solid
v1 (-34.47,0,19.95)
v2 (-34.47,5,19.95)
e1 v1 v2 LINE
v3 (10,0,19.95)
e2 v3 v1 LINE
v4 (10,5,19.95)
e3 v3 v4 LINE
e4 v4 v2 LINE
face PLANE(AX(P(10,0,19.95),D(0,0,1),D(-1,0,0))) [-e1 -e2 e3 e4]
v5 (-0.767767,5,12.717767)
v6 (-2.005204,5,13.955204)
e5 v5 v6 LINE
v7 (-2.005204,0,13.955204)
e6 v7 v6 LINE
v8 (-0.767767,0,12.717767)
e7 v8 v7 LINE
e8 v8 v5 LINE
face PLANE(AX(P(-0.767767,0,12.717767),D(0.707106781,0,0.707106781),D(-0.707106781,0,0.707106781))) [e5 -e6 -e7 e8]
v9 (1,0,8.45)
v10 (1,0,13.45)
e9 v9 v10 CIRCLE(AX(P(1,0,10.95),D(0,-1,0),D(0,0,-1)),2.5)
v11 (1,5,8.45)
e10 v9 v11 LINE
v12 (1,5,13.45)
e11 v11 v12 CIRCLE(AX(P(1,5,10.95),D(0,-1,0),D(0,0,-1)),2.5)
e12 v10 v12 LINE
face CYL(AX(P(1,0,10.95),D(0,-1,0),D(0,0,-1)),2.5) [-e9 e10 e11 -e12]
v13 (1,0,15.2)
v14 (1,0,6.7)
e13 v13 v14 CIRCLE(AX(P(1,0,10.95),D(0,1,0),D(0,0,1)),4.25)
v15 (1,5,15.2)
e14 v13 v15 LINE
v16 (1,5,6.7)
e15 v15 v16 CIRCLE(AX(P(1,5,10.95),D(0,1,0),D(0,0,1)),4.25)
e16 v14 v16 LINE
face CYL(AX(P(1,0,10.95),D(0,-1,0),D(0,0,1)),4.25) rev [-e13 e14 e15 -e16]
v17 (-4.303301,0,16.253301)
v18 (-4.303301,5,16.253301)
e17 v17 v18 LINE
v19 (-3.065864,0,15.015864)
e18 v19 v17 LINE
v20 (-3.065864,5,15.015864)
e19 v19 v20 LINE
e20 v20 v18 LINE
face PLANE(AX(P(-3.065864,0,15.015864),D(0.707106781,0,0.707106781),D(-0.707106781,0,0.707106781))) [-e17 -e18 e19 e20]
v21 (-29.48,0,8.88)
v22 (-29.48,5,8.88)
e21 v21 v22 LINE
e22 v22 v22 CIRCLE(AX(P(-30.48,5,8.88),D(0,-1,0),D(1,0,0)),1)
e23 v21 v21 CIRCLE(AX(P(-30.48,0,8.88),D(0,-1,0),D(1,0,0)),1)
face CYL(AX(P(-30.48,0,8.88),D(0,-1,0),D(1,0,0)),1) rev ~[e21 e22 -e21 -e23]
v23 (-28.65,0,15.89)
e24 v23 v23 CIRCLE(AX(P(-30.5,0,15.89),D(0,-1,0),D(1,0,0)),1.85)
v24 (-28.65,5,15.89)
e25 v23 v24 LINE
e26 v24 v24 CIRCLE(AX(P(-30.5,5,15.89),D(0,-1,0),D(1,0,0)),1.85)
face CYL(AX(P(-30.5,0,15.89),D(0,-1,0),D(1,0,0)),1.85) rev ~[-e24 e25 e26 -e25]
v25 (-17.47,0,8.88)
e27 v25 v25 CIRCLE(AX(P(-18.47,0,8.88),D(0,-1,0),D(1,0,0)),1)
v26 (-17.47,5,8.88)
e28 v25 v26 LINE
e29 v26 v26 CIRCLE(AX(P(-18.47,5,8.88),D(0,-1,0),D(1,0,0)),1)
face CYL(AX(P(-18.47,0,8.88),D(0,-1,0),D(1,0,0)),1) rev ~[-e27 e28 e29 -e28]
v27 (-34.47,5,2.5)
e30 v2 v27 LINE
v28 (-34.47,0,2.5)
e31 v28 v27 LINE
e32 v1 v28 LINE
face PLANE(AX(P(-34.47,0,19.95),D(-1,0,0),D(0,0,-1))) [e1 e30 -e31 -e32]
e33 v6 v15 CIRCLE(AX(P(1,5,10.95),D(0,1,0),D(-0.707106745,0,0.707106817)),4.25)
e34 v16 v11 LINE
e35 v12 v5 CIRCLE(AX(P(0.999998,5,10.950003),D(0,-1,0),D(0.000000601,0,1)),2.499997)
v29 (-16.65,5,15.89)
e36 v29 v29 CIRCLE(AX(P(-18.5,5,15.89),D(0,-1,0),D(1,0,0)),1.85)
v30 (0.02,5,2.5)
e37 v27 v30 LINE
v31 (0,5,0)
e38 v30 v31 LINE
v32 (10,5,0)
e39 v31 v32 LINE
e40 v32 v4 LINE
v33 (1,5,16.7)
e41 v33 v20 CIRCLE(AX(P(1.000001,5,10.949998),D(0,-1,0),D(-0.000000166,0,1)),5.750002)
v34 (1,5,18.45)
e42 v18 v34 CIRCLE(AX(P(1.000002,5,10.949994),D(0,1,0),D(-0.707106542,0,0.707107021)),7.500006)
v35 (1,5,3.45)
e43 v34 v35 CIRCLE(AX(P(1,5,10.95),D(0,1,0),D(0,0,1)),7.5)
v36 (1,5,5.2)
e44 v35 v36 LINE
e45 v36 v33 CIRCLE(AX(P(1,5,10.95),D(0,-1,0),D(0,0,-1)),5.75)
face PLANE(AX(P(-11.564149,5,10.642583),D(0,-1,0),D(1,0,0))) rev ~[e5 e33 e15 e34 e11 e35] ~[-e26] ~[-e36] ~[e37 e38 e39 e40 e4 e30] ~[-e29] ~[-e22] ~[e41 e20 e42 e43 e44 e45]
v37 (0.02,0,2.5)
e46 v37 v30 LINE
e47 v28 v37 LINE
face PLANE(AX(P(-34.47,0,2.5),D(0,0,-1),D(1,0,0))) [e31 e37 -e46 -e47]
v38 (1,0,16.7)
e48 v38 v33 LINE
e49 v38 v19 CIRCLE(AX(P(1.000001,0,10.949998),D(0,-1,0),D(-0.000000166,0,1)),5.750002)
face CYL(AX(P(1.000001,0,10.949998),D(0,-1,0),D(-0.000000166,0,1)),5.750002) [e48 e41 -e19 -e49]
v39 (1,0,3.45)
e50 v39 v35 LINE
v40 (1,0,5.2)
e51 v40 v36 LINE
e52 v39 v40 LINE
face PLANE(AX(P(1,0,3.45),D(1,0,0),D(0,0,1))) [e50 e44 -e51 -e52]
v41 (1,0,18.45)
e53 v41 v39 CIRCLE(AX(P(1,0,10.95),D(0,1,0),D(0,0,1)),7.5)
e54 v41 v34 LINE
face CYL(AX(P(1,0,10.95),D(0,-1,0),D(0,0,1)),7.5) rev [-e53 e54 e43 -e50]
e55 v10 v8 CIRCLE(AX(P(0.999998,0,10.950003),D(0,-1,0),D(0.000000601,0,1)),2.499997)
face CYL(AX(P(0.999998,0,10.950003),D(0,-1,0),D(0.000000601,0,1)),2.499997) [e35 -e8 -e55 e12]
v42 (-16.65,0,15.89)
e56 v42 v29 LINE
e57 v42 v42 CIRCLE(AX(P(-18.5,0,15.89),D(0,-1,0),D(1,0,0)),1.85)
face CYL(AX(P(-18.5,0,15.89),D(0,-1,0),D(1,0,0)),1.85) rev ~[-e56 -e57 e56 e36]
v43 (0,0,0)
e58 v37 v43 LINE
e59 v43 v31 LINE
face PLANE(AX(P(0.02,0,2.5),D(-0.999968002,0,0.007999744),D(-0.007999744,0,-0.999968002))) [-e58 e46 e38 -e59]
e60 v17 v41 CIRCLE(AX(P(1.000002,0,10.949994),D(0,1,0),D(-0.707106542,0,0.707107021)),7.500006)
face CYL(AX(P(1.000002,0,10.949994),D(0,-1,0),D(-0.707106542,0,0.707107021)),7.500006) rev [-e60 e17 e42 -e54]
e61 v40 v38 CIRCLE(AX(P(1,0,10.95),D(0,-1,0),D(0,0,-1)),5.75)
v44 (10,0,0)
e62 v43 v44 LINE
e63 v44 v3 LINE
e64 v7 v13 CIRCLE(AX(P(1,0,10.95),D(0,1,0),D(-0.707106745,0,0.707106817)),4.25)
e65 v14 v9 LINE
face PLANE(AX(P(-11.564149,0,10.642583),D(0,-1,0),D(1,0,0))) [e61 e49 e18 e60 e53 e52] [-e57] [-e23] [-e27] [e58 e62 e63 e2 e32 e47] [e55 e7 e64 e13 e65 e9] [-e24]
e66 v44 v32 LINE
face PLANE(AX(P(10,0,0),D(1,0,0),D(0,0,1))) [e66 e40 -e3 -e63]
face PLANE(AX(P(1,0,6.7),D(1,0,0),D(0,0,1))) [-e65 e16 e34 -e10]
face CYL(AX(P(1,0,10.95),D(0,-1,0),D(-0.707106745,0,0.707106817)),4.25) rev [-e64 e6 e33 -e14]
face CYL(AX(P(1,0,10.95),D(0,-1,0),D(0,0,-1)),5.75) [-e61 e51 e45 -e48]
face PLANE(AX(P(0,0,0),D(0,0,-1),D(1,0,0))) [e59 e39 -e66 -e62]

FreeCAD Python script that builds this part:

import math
import FreeCAD as App
import Part
import Sketcher

V = App.Vector
Q = App.Units.Quantity

doc = App.newDocument("Part")
body = doc.addObject("PartDesign::Body", "Body")

# Sketch on XZ plane
sketch1 = body.newObject("Sketcher::SketchObject", "Sketch")
sketch1.AttachmentSupport = (doc.getObject("XZ_Plane"), [""])
sketch1.MapMode = "FlatFace"
sketch1.addGeometry([
    Part.LineSegment(V(10, 0, 0), V(10, 19.9, 0)),  # 0
    Part.LineSegment(V(10, 19.9, 0), V(-34.5, 19.9, 0)),  # 1
    Part.LineSegment(V(-34.5, 19.9, 0), V(-34.5, 2.5, 0)),  # 2
    Part.LineSegment(V(-34.5, 2.5, 0), V(0, 2.5, 0)),  # 3
    Part.LineSegment(V(0, 2.5, 0), V(0, 0, 0)),  # 4
    Part.LineSegment(V(0, 0, 0), V(10, 0, 0)),  # 5
    Part.Circle(V(-30.5, 8.9, 0), V(0, 0, 1), 1),  # 6
    Part.Circle(V(-18.5, 8.9, 0), V(0, 0, 1), 1),  # 7
    Part.Circle(V(-30.5, 15.9, 0), V(0, 0, 1), 1.9),  # 8
    Part.Circle(V(-18.5, 15.9, 0), V(0, 0, 1), 1.9),  # 9
    Part.LineSegment(V(-0.8, 12.7, 0), V(-2, 14, 0)),  # 10
    Part.ArcOfCircle(Part.Circle(V(1, 11, 0), V(0, 0, 1), 4.2), math.radians(90), math.radians(135)),  # 11
    Part.ArcOfCircle(Part.Circle(V(1, 10.9, 0), V(0, 0, 1), 4.2), math.radians(-90), math.radians(90)),  # 12
    Part.LineSegment(V(1, 6.7, 0), V(1, 8.4, 0)),  # 13
    Part.ArcOfCircle(Part.Circle(V(1, 10.9, 0), V(0, 0, 1), 2.5), math.radians(-90), math.radians(90)),  # 14
    Part.ArcOfCircle(Part.Circle(V(1, 11, 0), V(0, 0, 1), 2.5), math.radians(90), math.radians(135)),  # 15
    Part.LineSegment(V(-3.1, 15, 0), V(-4.3, 16.3, 0)),  # 16
    Part.ArcOfCircle(Part.Circle(V(1, 10.9, 0), V(0, 0, 1), 7.5), math.radians(90), math.radians(135)),  # 17
    Part.ArcOfCircle(Part.Circle(V(1, 10.9, 0), V(0, 0, 1), 7.5), math.radians(-90), math.radians(90)),  # 18
    Part.LineSegment(V(1, 3.5, 0), V(1, 5.2, 0)),  # 19
    Part.ArcOfCircle(Part.Circle(V(1, 10.9, 0), V(0, 0, 1), 5.8), math.radians(-90), math.radians(90)),  # 20
    Part.ArcOfCircle(Part.Circle(V(1, 10.9, 0), V(0, 0, 1), 5.8), math.radians(90), math.radians(135)),  # 21
], False)
sketch1.addConstraint([
    Sketcher.Constraint("Coincident", 0, 2, 1, 1),
    Sketcher.Constraint("Coincident", 1, 2, 2, 1),
    Sketcher.Constraint("Coincident", 2, 2, 3, 1),
    Sketcher.Constraint("Coincident", 3, 2, 4, 1),
    Sketcher.Constraint("Coincident", 4, 2, 5, 1),
    Sketcher.Constraint("Coincident", 5, 2, 0, 1),
    Sketcher.Constraint("Coincident", 10, 2, 11, 2),
    Sketcher.Constraint("Tangent", 11, 1, 12, 2),
    Sketcher.Constraint("Coincident", 12, 1, 13, 1),
    Sketcher.Constraint("Coincident", 13, 2, 14, 1),
    Sketcher.Constraint("Tangent", 14, 2, 15, 1),
    Sketcher.Constraint("Coincident", 15, 2, 10, 1),
    Sketcher.Constraint("Coincident", 16, 2, 17, 2),
    Sketcher.Constraint("Tangent", 17, 1, 18, 2),
    Sketcher.Constraint("Coincident", 18, 1, 19, 1),
    Sketcher.Constraint("Coincident", 19, 2, 20, 1),
    Sketcher.Constraint("Tangent", 20, 2, 21, 1),
    Sketcher.Constraint("Coincident", 21, 2, 16, 1),
    Sketcher.Constraint("Vertical", 0),
    Sketcher.Constraint("Horizontal", 1),
    Sketcher.Constraint("Vertical", 2),
    Sketcher.Constraint("Horizontal", 3),
    Sketcher.Constraint("Horizontal", 5),
    Sketcher.Constraint("Vertical", 13),
    Sketcher.Constraint("Vertical", 19),
    Sketcher.Constraint("Coincident", 4, 2, -1, 1),
    Sketcher.Constraint("Coincident", 14, 3, 11, 3),
    Sketcher.Constraint("Coincident", 17, 3, 11, 3),
    Sketcher.Constraint("Coincident", 20, 3, 11, 3),
    Sketcher.Constraint("Equal", 6, 7),
    Sketcher.Constraint("Equal", 8, 9),
    Sketcher.Constraint("Equal", 11, 12),
    Sketcher.Constraint("Parallel", 10, 16),
    Sketcher.Constraint("Horizontal", 6, 3, 7, 3),
    Sketcher.Constraint("Horizontal", 8, 3, 9, 3),
    Sketcher.Constraint("Vertical", 21, 3, 11, 1),
    Sketcher.Constraint("Vertical", 11, 1, 12, 1),
    Sketcher.Constraint("Vertical", 13, 2, 14, 2),
    Sketcher.Constraint("Vertical", 14, 2, 17, 1),
    Sketcher.Constraint("Vertical", 17, 1, 18, 1),
    Sketcher.Constraint("Vertical", 19, 2, 20, 2),
    Sketcher.Constraint("Equal", 13, 19),
    Sketcher.Constraint("Equal", 10, 16),
    Sketcher.Constraint("Diameter", 6, 2.0),
    Sketcher.Constraint("Diameter", 8, 3.7),
    Sketcher.Constraint("Radius", 14, 2.5),
    Sketcher.Constraint("Radius", 18, 7.5),
    Sketcher.Constraint("DistanceX", 5, 1, 5, 2, 10.0),
    Sketcher.Constraint("Angle", 10, Q("135 deg")),
    Sketcher.Constraint("Radius", 11, 4.25),
    Sketcher.Constraint("Radius", 20, 5.75),
    Sketcher.Constraint("DistanceX", -1, 1, 11, 3, 1.0),
    Sketcher.Constraint("DistanceX", 8, 3, 9, 3, 12.0),
    Sketcher.Constraint("DistanceY", 12, 3, 0, 2, 9.0),
    Sketcher.Constraint("DistanceX", 1, 2, 7, 3, 16.0),
    Sketcher.Constraint("DistanceX", 1, 2, 1, 1, 44.47),
    Sketcher.Constraint("DistanceX", 3, 1, 3, 2, 34.49),
    Sketcher.Constraint("DistanceY", 0, 1, 0, 2, 19.95),
    Sketcher.Constraint("DistanceY", 2, 2, 2, 1, 17.45),
    Sketcher.Constraint("DistanceX", 8, 3, -1, 1, 30.5),
    Sketcher.Constraint("Distance", 10, 1.75),
    Sketcher.Constraint("DistanceX", 6, 3, -1, 1, 30.48),
    Sketcher.Constraint("DistanceY", -1, 1, 6, 3, 8.88),
    Sketcher.Constraint("DistanceY", -1, 1, 8, 3, 15.89),
    Sketcher.Constraint("DistanceX", 16, 2, -1, 1, 4.303301),
    Sketcher.Constraint("DistanceY", 15, 3, 10, 2, 3.005201),
])
pad1 = body.newObject("PartDesign::Pad", "Pad")
pad1.Profile = sketch1
pad1.Length = 5
pad1.Reversed = True

doc.recompute()
